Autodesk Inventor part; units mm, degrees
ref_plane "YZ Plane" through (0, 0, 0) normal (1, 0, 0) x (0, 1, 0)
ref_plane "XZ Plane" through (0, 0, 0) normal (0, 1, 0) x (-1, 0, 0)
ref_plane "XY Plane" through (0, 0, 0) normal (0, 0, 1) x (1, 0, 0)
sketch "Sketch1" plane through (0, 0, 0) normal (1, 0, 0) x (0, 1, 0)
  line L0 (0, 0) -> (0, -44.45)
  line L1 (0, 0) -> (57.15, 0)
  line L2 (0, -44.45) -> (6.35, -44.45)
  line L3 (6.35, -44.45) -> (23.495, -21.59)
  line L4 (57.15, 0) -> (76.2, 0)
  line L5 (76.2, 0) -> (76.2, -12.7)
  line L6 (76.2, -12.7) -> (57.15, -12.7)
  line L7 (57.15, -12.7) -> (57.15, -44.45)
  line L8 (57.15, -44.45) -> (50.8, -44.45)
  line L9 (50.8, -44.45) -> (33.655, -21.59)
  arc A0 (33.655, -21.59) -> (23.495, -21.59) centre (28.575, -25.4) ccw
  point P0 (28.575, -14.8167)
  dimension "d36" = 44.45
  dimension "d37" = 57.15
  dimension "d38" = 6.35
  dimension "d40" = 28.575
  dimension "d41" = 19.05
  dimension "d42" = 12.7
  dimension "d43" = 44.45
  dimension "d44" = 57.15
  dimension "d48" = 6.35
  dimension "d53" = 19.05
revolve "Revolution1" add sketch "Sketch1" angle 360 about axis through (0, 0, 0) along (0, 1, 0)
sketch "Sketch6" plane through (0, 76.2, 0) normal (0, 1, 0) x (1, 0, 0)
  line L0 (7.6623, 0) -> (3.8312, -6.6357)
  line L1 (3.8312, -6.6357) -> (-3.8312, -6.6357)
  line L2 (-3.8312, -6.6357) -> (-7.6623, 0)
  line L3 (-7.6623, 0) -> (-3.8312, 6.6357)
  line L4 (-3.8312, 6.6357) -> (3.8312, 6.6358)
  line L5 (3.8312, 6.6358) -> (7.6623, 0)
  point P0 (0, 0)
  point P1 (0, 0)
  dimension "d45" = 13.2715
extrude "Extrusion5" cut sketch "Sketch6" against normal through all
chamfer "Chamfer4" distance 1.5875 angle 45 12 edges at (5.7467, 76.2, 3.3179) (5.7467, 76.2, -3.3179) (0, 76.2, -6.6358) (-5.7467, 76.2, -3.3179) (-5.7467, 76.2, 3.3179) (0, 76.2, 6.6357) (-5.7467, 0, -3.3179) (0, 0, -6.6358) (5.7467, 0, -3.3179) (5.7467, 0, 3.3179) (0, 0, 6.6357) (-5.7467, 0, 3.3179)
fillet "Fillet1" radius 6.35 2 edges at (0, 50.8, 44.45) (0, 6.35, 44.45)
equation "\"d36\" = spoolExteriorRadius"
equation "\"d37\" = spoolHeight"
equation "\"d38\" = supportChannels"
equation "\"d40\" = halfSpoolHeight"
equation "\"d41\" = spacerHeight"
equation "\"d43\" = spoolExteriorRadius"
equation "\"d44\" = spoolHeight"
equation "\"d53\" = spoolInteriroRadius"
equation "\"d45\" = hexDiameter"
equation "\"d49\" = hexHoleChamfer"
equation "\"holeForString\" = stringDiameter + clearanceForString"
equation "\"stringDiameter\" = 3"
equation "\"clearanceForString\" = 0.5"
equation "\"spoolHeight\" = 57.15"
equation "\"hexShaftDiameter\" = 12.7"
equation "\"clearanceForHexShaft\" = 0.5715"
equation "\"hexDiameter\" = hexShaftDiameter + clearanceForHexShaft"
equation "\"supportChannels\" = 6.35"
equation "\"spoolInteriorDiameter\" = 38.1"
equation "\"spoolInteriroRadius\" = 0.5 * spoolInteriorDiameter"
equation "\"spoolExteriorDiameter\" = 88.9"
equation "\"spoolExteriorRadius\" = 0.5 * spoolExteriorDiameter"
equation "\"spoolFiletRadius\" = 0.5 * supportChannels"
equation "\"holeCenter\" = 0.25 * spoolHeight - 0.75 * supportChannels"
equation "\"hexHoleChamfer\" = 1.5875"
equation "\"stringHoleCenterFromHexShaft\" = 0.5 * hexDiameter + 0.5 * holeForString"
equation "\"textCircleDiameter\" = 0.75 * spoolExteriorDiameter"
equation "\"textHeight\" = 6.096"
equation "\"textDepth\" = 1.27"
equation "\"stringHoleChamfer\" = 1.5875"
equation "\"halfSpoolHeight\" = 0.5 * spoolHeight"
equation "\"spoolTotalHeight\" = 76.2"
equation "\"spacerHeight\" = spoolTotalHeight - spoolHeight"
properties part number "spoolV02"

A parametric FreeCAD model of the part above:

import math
import FreeCAD as App
import Part
import Sketcher

V = App.Vector
Q = App.Units.Quantity


def edges_at(feature, points):
    """Names of the edges that pass closest to the given points."""
    edges = feature.Shape.Edges
    near = lambda p: min(range(len(edges)), key=lambda i: edges[i].distToShape(Part.Vertex(*p))[0])
    return sorted({f"Edge{near(p) + 1}" for p in points})

doc = App.newDocument("Part")
params = doc.addObject("Spreadsheet::Sheet", "Params")
for row, (alias, value) in enumerate([
    ("sketch1_radius", "0.25 in"),
    ("sketch1_height", "0.5 in"),
    ("sketch1_width", "0.25 in"),
    ("sketch1_width2", "0.75 in"),
    ("sketch1_height2", "1.75 in"),
    ("revolution_angle", "360 deg"),
    ("chamfer_size", "0.0625 in"),
    ("fillet_radius", "0.25 in"),
], start=1):
    params.set(f"A{row}", alias)
    params.set(f"B{row}", "=" + value)
    params.setAlias(f"B{row}", alias)

body = doc.addObject("PartDesign::Body", "Body")

# Sketch on YZ plane
sketch1 = body.newObject("Sketcher::SketchObject", "Sketch")
sketch1.AttachmentSupport = (doc.getObject("YZ_Plane"), [""])
sketch1.MapMode = "FlatFace"
sketch1.addGeometry(Part.LineSegment(V(76, 0, 0), V(0, 0, 0)), False)
sketch1.addGeometry(Part.LineSegment(V(0, 0, 0), V(0, -44, 0)), False)
sketch1.addGeometry(Part.LineSegment(V(0, -44, 0), V(6, -44, 0)), False)
sketch1.addGeometry(Part.LineSegment(V(6, -44, 0), V(23, -22, 0)), False)
sketch1.addGeometry(Part.ArcOfCircle(Part.Circle(V(29, -25, 0), V(0, 0, 1), 6), math.radians(37), math.radians(143)), False)
sketch1.addGeometry(Part.LineSegment(V(34, -22, 0), V(51, -44, 0)), False)
sketch1.addGeometry(Part.LineSegment(V(51, -44, 0), V(57, -44, 0)), False)
sketch1.addGeometry(Part.LineSegment(V(57, -44, 0), V(57, -13, 0)), False)
sketch1.addGeometry(Part.LineSegment(V(57, -13, 0), V(76, -13, 0)), False)
sketch1.addGeometry(Part.LineSegment(V(76, -13, 0), V(76, 0, 0)), False)
sketch1.addConstraint(Sketcher.Constraint("Coincident", 0, 2, 1, 1))
sketch1.addConstraint(Sketcher.Constraint("Coincident", 1, 2, 2, 1))
sketch1.addConstraint(Sketcher.Constraint("Coincident", 2, 2, 3, 1))
sketch1.addConstraint(Sketcher.Constraint("Tangent", 3, 2, 4, 2))
sketch1.addConstraint(Sketcher.Constraint("Tangent", 4, 1, 5, 1))
sketch1.addConstraint(Sketcher.Constraint("Coincident", 5, 2, 6, 1))
sketch1.addConstraint(Sketcher.Constraint("Coincident", 6, 2, 7, 1))
sketch1.addConstraint(Sketcher.Constraint("Coincident", 7, 2, 8, 1))
sketch1.addConstraint(Sketcher.Constraint("Coincident", 8, 2, 9, 1))
sketch1.addConstraint(Sketcher.Constraint("Coincident", 9, 2, 0, 1))
sketch1.addConstraint(Sketcher.Constraint("Horizontal", 0))
sketch1.addConstraint(Sketcher.Constraint("Vertical", 1))
sketch1.addConstraint(Sketcher.Constraint("Horizontal", 2))
sketch1.addConstraint(Sketcher.Constraint("Horizontal", 6))
sketch1.addConstraint(Sketcher.Constraint("Vertical", 7))
sketch1.addConstraint(Sketcher.Constraint("Horizontal", 8))
sketch1.addConstraint(Sketcher.Constraint("Vertical", 9))
sketch1.addConstraint(Sketcher.Constraint("Coincident", 0, 2, -1, 1))
sketch1.addConstraint(Sketcher.Constraint("Horizontal", 3, 2, 4, 1))
sketch1.addConstraint(Sketcher.Constraint("Horizontal", 2, 2, 5, 2))
sketch1.addConstraint(Sketcher.Constraint("Equal", 2, 6))
sketch1.addConstraint(Sketcher.Constraint("Radius", 4, Q("0.25 in")))
sketch1.addConstraint(Sketcher.Constraint("DistanceY", 9, 1, 9, 2, Q("0.5 in")))
sketch1.addConstraint(Sketcher.Constraint("DistanceX", 2, 1, 2, 2, Q("0.25 in")))
sketch1.addConstraint(Sketcher.Constraint("DistanceX", 8, 1, 8, 2, Q("0.75 in")))
sketch1.addConstraint(Sketcher.Constraint("DistanceY", 1, 2, 1, 1, Q("1.75 in")))
sketch1.addConstraint(Sketcher.Constraint("DistanceY", 4, 3, 7, 2, Q("0.5 in")))
sketch1.addConstraint(Sketcher.Constraint("DistanceX", 0, 2, 0, 1, Q("3 in")))
sketch1.setExpression("Constraints[21]", "Params.sketch1_radius")
sketch1.setExpression("Constraints[22]", "Params.sketch1_height")
sketch1.setExpression("Constraints[23]", "Params.sketch1_width")
sketch1.setExpression("Constraints[24]", "Params.sketch1_width2")
sketch1.setExpression("Constraints[25]", "Params.sketch1_height2")
revolution = body.newObject("PartDesign::Revolution", "Revolution")
revolution.Profile = sketch1
revolution.ReferenceAxis = (sketch1, ["H_Axis"])
revolution.setExpression("Angle", "Params.revolution_angle")

# Sketch on XZ plane
sketch2 = body.newObject("Sketcher::SketchObject", "Sketch001")
sketch2.AttachmentSupport = (doc.getObject("XZ_Plane"), [""])
sketch2.MapMode = "FlatFace"
sketch2.AttachmentOffset = App.Placement(V(0, 0, -3 * 25.4), App.Rotation())
sketch2.addGeometry(Part.LineSegment(V(4, 7, 0), V(8, 0, 0)), False)
sketch2.addGeometry(Part.LineSegment(V(8, 0, 0), V(4, -7, 0)), False)
sketch2.addGeometry(Part.LineSegment(V(4, -7, 0), V(-4, -7, 0)), False)
sketch2.addGeometry(Part.LineSegment(V(-4, -7, 0), V(-8, 0, 0)), False)
sketch2.addGeometry(Part.LineSegment(V(-8, 0, 0), V(-4, 7, 0)), False)
sketch2.addGeometry(Part.LineSegment(V(-4, 7, 0), V(4, 7, 0)), False)
sketch2.addConstraint(Sketcher.Constraint("Coincident", 0, 2, 1, 1))
sketch2.addConstraint(Sketcher.Constraint("Coincident", 1, 2, 2, 1))
sketch2.addConstraint(Sketcher.Constraint("Coincident", 2, 2, 3, 1))
sketch2.addConstraint(Sketcher.Constraint("Coincident", 3, 2, 4, 1))
sketch2.addConstraint(Sketcher.Constraint("Coincident", 4, 2, 5, 1))
sketch2.addConstraint(Sketcher.Constraint("Coincident", 5, 2, 0, 1))
sketch2.addConstraint(Sketcher.Constraint("Horizontal", 2))
sketch2.addConstraint(Sketcher.Constraint("Horizontal", 5))
sketch2.addConstraint(Sketcher.Constraint("Symmetric", 0, 2, 3, 2, -1, 1))
sketch2.addConstraint(Sketcher.Constraint("Symmetric", 1, 2, 4, 2, -1, 1))
sketch2.addConstraint(Sketcher.Constraint("PointOnObject", 0, 2, -1))
sketch2.addConstraint(Sketcher.Constraint("Parallel", 0, 3))
sketch2.addConstraint(Sketcher.Constraint("Vertical", 2, 2, 4, 2))
sketch2.addConstraint(Sketcher.Constraint("Angle", 0, Q("-60.0002 deg")))
sketch2.addConstraint(Sketcher.Constraint("DistanceY", 2, 2, 4, 2, Q("0.5225 in")))
sketch2.addConstraint(Sketcher.Constraint("DistanceX", 2, 2, 2, 1, 7.6624))
pocket1 = body.newObject("PartDesign::Pocket", "Pocket")
pocket1.Profile = sketch2
pocket1.Type = "ThroughAll"
pocket1.Reversed = True
doc.recompute()

chamfer = body.newObject("PartDesign::Chamfer", "Chamfer")
chamfer.Base = (pocket1, edges_at(pocket1, [
    (5.747, 76.2, 3.318),
    (5.747, 76.2, -3.318),
    (0, 76.2, -6.636),
    (-5.747, 76.2, -3.318),
    (-5.747, 76.2, 3.318),
    (0, 76.2, 6.636),
    (-5.747, 0, -3.318),
    (0, 0, -6.636),
    (5.747, 0, -3.318),
    (5.747, 0, 3.318),
    (0, 0, 6.636),
    (-5.747, 0, 3.318),
]))
chamfer.setExpression("Size", "Params.chamfer_size")
doc.recompute()

fillet = body.newObject("PartDesign::Fillet", "Fillet")
fillet.Base = (chamfer, edges_at(chamfer, [(0, 50.8, 44.45), (0, 6.35, 44.45)]))
fillet.setExpression("Radius", "Params.fillet_radius")

doc.recompute()
